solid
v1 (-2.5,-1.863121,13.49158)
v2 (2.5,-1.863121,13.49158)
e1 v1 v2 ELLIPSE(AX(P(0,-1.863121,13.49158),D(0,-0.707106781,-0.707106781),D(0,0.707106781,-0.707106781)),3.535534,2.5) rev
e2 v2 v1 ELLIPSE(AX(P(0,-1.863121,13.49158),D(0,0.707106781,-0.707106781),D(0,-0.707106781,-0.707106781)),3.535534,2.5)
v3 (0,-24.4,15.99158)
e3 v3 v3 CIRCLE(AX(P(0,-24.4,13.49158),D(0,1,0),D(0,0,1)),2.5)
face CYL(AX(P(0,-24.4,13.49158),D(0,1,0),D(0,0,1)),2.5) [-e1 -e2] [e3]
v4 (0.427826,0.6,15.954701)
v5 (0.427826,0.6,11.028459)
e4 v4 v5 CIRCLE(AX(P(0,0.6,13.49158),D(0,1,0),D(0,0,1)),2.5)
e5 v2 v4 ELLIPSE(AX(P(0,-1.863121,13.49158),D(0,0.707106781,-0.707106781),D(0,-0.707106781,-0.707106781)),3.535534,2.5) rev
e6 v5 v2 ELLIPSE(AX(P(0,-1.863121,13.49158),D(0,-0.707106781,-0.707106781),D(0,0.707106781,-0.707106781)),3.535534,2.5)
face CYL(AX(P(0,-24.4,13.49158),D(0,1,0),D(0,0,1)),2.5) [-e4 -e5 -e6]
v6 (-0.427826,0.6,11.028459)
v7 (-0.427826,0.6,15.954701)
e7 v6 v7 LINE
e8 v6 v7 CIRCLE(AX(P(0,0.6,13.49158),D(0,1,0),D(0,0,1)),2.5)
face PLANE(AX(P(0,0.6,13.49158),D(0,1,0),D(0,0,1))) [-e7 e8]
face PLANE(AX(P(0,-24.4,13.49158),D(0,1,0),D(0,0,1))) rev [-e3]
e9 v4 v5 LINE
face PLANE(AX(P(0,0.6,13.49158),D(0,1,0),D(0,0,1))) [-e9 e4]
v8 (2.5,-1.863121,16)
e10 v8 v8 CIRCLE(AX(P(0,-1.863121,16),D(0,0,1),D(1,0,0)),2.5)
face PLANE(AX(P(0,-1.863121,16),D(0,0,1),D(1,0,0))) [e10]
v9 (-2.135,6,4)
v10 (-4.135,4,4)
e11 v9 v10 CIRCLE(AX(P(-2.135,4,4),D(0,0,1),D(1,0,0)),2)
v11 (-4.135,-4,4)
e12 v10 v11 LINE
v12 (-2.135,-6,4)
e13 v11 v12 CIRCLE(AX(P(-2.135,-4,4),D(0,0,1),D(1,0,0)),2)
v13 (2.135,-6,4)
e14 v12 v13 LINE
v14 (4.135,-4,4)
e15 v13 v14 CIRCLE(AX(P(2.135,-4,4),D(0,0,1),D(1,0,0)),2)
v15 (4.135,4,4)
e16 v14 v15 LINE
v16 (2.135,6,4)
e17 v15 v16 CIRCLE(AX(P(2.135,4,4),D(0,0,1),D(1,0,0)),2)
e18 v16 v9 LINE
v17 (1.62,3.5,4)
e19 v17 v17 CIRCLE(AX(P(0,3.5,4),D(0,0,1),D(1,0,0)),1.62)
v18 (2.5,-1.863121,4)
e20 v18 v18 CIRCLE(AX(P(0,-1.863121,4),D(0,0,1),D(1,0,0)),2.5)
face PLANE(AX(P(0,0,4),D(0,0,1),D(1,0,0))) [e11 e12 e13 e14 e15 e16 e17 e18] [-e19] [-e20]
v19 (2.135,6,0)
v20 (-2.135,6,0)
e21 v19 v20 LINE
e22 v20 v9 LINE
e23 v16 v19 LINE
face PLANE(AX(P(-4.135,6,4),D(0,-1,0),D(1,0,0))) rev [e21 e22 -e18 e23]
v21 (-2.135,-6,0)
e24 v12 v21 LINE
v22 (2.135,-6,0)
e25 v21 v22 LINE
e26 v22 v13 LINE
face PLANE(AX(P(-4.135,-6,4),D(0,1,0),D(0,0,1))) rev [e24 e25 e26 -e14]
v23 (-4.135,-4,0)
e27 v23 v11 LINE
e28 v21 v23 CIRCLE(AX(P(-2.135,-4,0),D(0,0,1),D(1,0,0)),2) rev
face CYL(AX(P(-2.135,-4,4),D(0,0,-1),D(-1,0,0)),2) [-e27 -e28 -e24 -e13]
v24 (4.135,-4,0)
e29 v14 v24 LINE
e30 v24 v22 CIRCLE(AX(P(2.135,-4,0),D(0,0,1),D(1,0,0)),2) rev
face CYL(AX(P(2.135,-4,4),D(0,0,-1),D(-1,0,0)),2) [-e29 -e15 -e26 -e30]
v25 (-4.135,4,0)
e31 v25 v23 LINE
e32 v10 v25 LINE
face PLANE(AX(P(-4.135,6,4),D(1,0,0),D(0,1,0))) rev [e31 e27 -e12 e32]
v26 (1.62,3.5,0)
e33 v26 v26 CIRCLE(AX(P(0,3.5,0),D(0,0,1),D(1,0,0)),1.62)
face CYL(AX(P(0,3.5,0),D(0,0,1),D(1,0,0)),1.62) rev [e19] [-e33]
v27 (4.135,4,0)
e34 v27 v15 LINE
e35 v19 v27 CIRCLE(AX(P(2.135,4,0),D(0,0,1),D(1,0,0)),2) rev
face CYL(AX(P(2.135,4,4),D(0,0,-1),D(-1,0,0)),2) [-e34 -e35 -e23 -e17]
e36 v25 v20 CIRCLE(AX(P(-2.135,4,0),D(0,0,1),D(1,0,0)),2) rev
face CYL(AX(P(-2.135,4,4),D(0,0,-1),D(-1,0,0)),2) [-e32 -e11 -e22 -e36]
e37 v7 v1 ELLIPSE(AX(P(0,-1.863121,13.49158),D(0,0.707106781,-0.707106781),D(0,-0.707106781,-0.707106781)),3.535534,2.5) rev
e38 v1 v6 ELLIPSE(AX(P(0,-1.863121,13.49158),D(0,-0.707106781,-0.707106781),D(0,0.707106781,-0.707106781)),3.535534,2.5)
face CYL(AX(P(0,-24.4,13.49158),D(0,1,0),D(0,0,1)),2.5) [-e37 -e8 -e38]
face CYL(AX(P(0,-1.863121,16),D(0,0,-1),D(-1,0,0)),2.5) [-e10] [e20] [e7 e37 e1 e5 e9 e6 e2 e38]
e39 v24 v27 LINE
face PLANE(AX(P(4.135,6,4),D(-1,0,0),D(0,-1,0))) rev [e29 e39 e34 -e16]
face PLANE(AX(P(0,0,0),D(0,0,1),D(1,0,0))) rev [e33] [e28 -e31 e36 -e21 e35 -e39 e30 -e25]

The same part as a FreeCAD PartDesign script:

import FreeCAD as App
import Part
import Sketcher
Q = App.Units.Quantity


def edges_at(feature, points):
    """Names of the edges that pass closest to the given points."""
    edges = feature.Shape.Edges
    near = lambda p: min(range(len(edges)), key=lambda i: edges[i].distToShape(Part.Vertex(*p))[0])
    return sorted({f"Edge{near(p) + 1}" for p in points})

doc = App.newDocument("Part")
body = doc.addObject("PartDesign::Body", "Body")

sketch1 = body.newObject("Sketcher::SketchObject", "Sketch")
sketch1.AttachmentSupport = (doc.getObject("XY_Plane"), [""])
sketch1.MapMode = "FlatFace"
sketch1.addGeometry(Part.LineSegment(App.Vector(-4, 6, 0), App.Vector(-4, -6, 0)), False)
sketch1.addGeometry(Part.LineSegment(App.Vector(-4, -6, 0), App.Vector(4, -6, 0)), False)
sketch1.addGeometry(Part.LineSegment(App.Vector(4, -6, 0), App.Vector(4, 6, 0)), False)
sketch1.addGeometry(Part.LineSegment(App.Vector(4, 6, 0), App.Vector(-4, 6, 0)), False)
sketch1.addConstraint(Sketcher.Constraint("Coincident", 0, 2, 1, 1))
sketch1.addConstraint(Sketcher.Constraint("Coincident", 1, 2, 2, 1))
sketch1.addConstraint(Sketcher.Constraint("Coincident", 2, 2, 3, 1))
sketch1.addConstraint(Sketcher.Constraint("Coincident", 3, 2, 0, 1))
sketch1.addConstraint(Sketcher.Constraint("Vertical", 0))
sketch1.addConstraint(Sketcher.Constraint("Horizontal", 1))
sketch1.addConstraint(Sketcher.Constraint("Vertical", 2))
sketch1.addConstraint(Sketcher.Constraint("Horizontal", 3))
sketch1.addConstraint(Sketcher.Constraint("Symmetric", 0, 2, 2, 2, -1, 1))
sketch1.addConstraint(Sketcher.Constraint("DistanceY", 0, 2, 0, 1, Q("12 mm")))
sketch1.addConstraint(Sketcher.Constraint("DistanceX", 1, 1, 1, 2, Q("8.27 mm")))
pad1 = body.newObject("PartDesign::Pad", "Pad")
pad1.Profile = sketch1
pad1.Length = 4
doc.recompute()

fillet = body.newObject("PartDesign::Fillet", "Fillet")
fillet.Base = (pad1, edges_at(pad1, [(4.135, 6, 2)]))
fillet.Radius = 2
doc.recompute()

fillet2 = body.newObject("PartDesign::Fillet", "Fillet001")
fillet2.Base = (fillet, edges_at(fillet, [(4.135, -6, 2), (-4.135, -6, 2), (-4.135, 6, 2)]))
fillet2.Radius = 2

sketch2 = body.newObject("Sketcher::SketchObject", "Sketch001")
sketch2.AttachmentSupport = (doc.getObject("XY_Plane"), [""])
sketch2.MapMode = "FlatFace"
sketch2.AttachmentOffset = App.Placement(App.Vector(0, 0, 4), App.Rotation())
sketch2.addGeometry(Part.Circle(App.Vector(0, 3.5, 0), App.Vector(0, 0, 1), 1.6), False)
sketch2.addConstraint(Sketcher.Constraint("PointOnObject", 0, 3, -2))
sketch2.addConstraint(Sketcher.Constraint("Diameter", 0, Q("3.24 mm")))
sketch2.addConstraint(Sketcher.Constraint("DistanceY", -1, 1, 0, 3, Q("3.5 mm")))
pocket1 = body.newObject("PartDesign::Pocket", "Pocket")
pocket1.Profile = sketch2
pocket1.Length = 4

sketch3 = body.newObject("Sketcher::SketchObject", "Sketch002")
sketch3.AttachmentSupport = (doc.getObject("XY_Plane"), [""])
sketch3.MapMode = "FlatFace"
sketch3.AttachmentOffset = App.Placement(App.Vector(0, 0, 4), App.Rotation())
sketch3.addGeometry(Part.Circle(App.Vector(0, -1.9, 0), App.Vector(0, 0, 1), 2.5), False)
sketch3.addConstraint(Sketcher.Constraint("PointOnObject", 0, 3, -2))
sketch3.addConstraint(Sketcher.Constraint("Diameter", 0, Q("5 mm")))
sketch3.addConstraint(Sketcher.Constraint("DistanceY", 0, 3, -1, 1, Q("1.863121 mm")))
pad2 = body.newObject("PartDesign::Pad", "Pad001")
pad2.Profile = sketch3
pad2.Length = 12

sketch4 = body.newObject("Sketcher::SketchObject", "Sketch003")
sketch4.AttachmentSupport = (doc.getObject("XZ_Plane"), [""])
sketch4.MapMode = "FlatFace"
sketch4.AttachmentOffset = App.Placement(App.Vector(0, 0, -0.6), App.Rotation())
sketch4.addGeometry(Part.Circle(App.Vector(0, 13.5, 0), App.Vector(0, 0, 1), 2.5), False)
sketch4.addConstraint(Sketcher.Constraint("PointOnObject", 0, 3, -2))
sketch4.addConstraint(Sketcher.Constraint("Diameter", 0, Q("5 mm")))
sketch4.addConstraint(Sketcher.Constraint("DistanceY", -1, 1, 0, 3, Q("13.49158 mm")))
pad3 = body.newObject("PartDesign::Pad", "Pad002")
pad3.Profile = sketch4
pad3.Length = 25

doc.recompute()
